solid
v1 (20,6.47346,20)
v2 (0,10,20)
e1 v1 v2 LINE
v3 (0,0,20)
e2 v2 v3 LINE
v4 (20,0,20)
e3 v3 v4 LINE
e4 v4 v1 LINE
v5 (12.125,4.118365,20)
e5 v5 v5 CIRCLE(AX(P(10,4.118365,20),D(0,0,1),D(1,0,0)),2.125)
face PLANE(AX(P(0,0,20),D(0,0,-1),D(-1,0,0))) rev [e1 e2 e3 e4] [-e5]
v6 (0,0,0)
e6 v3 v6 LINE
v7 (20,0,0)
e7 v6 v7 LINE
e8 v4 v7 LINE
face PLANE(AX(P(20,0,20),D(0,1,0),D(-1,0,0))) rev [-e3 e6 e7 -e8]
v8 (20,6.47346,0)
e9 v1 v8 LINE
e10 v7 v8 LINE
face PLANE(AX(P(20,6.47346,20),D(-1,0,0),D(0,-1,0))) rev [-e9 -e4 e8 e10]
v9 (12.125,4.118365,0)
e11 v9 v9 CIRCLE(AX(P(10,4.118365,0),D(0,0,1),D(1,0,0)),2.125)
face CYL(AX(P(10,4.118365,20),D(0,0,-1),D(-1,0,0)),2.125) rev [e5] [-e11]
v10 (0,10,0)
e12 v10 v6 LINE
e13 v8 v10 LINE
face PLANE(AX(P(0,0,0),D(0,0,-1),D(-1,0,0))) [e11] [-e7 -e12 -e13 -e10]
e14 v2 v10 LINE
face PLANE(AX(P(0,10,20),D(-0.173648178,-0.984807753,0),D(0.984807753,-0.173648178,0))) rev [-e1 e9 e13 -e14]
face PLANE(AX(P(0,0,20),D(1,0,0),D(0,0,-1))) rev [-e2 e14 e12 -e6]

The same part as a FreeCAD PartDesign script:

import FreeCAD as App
import Part
import Sketcher
Q = App.Units.Quantity

doc = App.newDocument("Part")
body = doc.addObject("PartDesign::Body", "Body")

sketch1 = doc.addObject("Sketcher::SketchObject", "Sketch")
body.addObject(sketch1)
sketch1.AttachmentSupport = (doc.XY_Plane, [""])
sketch1.MapMode = "FlatFace"
sketch1.addGeometry([
    Part.LineSegment(App.Vector(0, 10, 0), App.Vector(0, 0, 0)),
    Part.LineSegment(App.Vector(0, 0, 0), App.Vector(20, 0, 0)),
    Part.LineSegment(App.Vector(20, 0, 0), App.Vector(20, 6.47346, 0)),
    Part.LineSegment(App.Vector(20, 6.47346, 0), App.Vector(0, 10, 0)),
    Part.Circle(App.Vector(10, 4.118365, 0), App.Vector(0, 0, 1), 2.125),
], False)
sketch1.addConstraint([
    Sketcher.Constraint("Coincident", 0, 2, 1, 1),
    Sketcher.Constraint("Coincident", 1, 2, 2, 1),
    Sketcher.Constraint("Coincident", 2, 2, 3, 1),
    Sketcher.Constraint("Coincident", 3, 2, 0, 1),
    Sketcher.Constraint("Vertical", 0),
    Sketcher.Constraint("Horizontal", 1),
    Sketcher.Constraint("Vertical", 2),
    Sketcher.Constraint("Coincident", 0, 2, -1, 1),
    Sketcher.Constraint("Diameter", 4, 4.25),
    Sketcher.Constraint("DistanceX", 1, 1, 1, 2, 20.0),
    Sketcher.Constraint("DistanceY", 0, 2, 0, 1, 10.0),
    Sketcher.Constraint("Angle", 3, Q("170 deg")),
    Sketcher.Constraint("DistanceX", -1, 1, 4, 3, 10.0),
    Sketcher.Constraint("DistanceY", -1, 1, 4, 3, 4.118365),
])
pad1 = doc.addObject("PartDesign::Pad", "Pad")
body.addObject(pad1)
pad1.Profile = sketch1
pad1.Length = 20

doc.recompute()
